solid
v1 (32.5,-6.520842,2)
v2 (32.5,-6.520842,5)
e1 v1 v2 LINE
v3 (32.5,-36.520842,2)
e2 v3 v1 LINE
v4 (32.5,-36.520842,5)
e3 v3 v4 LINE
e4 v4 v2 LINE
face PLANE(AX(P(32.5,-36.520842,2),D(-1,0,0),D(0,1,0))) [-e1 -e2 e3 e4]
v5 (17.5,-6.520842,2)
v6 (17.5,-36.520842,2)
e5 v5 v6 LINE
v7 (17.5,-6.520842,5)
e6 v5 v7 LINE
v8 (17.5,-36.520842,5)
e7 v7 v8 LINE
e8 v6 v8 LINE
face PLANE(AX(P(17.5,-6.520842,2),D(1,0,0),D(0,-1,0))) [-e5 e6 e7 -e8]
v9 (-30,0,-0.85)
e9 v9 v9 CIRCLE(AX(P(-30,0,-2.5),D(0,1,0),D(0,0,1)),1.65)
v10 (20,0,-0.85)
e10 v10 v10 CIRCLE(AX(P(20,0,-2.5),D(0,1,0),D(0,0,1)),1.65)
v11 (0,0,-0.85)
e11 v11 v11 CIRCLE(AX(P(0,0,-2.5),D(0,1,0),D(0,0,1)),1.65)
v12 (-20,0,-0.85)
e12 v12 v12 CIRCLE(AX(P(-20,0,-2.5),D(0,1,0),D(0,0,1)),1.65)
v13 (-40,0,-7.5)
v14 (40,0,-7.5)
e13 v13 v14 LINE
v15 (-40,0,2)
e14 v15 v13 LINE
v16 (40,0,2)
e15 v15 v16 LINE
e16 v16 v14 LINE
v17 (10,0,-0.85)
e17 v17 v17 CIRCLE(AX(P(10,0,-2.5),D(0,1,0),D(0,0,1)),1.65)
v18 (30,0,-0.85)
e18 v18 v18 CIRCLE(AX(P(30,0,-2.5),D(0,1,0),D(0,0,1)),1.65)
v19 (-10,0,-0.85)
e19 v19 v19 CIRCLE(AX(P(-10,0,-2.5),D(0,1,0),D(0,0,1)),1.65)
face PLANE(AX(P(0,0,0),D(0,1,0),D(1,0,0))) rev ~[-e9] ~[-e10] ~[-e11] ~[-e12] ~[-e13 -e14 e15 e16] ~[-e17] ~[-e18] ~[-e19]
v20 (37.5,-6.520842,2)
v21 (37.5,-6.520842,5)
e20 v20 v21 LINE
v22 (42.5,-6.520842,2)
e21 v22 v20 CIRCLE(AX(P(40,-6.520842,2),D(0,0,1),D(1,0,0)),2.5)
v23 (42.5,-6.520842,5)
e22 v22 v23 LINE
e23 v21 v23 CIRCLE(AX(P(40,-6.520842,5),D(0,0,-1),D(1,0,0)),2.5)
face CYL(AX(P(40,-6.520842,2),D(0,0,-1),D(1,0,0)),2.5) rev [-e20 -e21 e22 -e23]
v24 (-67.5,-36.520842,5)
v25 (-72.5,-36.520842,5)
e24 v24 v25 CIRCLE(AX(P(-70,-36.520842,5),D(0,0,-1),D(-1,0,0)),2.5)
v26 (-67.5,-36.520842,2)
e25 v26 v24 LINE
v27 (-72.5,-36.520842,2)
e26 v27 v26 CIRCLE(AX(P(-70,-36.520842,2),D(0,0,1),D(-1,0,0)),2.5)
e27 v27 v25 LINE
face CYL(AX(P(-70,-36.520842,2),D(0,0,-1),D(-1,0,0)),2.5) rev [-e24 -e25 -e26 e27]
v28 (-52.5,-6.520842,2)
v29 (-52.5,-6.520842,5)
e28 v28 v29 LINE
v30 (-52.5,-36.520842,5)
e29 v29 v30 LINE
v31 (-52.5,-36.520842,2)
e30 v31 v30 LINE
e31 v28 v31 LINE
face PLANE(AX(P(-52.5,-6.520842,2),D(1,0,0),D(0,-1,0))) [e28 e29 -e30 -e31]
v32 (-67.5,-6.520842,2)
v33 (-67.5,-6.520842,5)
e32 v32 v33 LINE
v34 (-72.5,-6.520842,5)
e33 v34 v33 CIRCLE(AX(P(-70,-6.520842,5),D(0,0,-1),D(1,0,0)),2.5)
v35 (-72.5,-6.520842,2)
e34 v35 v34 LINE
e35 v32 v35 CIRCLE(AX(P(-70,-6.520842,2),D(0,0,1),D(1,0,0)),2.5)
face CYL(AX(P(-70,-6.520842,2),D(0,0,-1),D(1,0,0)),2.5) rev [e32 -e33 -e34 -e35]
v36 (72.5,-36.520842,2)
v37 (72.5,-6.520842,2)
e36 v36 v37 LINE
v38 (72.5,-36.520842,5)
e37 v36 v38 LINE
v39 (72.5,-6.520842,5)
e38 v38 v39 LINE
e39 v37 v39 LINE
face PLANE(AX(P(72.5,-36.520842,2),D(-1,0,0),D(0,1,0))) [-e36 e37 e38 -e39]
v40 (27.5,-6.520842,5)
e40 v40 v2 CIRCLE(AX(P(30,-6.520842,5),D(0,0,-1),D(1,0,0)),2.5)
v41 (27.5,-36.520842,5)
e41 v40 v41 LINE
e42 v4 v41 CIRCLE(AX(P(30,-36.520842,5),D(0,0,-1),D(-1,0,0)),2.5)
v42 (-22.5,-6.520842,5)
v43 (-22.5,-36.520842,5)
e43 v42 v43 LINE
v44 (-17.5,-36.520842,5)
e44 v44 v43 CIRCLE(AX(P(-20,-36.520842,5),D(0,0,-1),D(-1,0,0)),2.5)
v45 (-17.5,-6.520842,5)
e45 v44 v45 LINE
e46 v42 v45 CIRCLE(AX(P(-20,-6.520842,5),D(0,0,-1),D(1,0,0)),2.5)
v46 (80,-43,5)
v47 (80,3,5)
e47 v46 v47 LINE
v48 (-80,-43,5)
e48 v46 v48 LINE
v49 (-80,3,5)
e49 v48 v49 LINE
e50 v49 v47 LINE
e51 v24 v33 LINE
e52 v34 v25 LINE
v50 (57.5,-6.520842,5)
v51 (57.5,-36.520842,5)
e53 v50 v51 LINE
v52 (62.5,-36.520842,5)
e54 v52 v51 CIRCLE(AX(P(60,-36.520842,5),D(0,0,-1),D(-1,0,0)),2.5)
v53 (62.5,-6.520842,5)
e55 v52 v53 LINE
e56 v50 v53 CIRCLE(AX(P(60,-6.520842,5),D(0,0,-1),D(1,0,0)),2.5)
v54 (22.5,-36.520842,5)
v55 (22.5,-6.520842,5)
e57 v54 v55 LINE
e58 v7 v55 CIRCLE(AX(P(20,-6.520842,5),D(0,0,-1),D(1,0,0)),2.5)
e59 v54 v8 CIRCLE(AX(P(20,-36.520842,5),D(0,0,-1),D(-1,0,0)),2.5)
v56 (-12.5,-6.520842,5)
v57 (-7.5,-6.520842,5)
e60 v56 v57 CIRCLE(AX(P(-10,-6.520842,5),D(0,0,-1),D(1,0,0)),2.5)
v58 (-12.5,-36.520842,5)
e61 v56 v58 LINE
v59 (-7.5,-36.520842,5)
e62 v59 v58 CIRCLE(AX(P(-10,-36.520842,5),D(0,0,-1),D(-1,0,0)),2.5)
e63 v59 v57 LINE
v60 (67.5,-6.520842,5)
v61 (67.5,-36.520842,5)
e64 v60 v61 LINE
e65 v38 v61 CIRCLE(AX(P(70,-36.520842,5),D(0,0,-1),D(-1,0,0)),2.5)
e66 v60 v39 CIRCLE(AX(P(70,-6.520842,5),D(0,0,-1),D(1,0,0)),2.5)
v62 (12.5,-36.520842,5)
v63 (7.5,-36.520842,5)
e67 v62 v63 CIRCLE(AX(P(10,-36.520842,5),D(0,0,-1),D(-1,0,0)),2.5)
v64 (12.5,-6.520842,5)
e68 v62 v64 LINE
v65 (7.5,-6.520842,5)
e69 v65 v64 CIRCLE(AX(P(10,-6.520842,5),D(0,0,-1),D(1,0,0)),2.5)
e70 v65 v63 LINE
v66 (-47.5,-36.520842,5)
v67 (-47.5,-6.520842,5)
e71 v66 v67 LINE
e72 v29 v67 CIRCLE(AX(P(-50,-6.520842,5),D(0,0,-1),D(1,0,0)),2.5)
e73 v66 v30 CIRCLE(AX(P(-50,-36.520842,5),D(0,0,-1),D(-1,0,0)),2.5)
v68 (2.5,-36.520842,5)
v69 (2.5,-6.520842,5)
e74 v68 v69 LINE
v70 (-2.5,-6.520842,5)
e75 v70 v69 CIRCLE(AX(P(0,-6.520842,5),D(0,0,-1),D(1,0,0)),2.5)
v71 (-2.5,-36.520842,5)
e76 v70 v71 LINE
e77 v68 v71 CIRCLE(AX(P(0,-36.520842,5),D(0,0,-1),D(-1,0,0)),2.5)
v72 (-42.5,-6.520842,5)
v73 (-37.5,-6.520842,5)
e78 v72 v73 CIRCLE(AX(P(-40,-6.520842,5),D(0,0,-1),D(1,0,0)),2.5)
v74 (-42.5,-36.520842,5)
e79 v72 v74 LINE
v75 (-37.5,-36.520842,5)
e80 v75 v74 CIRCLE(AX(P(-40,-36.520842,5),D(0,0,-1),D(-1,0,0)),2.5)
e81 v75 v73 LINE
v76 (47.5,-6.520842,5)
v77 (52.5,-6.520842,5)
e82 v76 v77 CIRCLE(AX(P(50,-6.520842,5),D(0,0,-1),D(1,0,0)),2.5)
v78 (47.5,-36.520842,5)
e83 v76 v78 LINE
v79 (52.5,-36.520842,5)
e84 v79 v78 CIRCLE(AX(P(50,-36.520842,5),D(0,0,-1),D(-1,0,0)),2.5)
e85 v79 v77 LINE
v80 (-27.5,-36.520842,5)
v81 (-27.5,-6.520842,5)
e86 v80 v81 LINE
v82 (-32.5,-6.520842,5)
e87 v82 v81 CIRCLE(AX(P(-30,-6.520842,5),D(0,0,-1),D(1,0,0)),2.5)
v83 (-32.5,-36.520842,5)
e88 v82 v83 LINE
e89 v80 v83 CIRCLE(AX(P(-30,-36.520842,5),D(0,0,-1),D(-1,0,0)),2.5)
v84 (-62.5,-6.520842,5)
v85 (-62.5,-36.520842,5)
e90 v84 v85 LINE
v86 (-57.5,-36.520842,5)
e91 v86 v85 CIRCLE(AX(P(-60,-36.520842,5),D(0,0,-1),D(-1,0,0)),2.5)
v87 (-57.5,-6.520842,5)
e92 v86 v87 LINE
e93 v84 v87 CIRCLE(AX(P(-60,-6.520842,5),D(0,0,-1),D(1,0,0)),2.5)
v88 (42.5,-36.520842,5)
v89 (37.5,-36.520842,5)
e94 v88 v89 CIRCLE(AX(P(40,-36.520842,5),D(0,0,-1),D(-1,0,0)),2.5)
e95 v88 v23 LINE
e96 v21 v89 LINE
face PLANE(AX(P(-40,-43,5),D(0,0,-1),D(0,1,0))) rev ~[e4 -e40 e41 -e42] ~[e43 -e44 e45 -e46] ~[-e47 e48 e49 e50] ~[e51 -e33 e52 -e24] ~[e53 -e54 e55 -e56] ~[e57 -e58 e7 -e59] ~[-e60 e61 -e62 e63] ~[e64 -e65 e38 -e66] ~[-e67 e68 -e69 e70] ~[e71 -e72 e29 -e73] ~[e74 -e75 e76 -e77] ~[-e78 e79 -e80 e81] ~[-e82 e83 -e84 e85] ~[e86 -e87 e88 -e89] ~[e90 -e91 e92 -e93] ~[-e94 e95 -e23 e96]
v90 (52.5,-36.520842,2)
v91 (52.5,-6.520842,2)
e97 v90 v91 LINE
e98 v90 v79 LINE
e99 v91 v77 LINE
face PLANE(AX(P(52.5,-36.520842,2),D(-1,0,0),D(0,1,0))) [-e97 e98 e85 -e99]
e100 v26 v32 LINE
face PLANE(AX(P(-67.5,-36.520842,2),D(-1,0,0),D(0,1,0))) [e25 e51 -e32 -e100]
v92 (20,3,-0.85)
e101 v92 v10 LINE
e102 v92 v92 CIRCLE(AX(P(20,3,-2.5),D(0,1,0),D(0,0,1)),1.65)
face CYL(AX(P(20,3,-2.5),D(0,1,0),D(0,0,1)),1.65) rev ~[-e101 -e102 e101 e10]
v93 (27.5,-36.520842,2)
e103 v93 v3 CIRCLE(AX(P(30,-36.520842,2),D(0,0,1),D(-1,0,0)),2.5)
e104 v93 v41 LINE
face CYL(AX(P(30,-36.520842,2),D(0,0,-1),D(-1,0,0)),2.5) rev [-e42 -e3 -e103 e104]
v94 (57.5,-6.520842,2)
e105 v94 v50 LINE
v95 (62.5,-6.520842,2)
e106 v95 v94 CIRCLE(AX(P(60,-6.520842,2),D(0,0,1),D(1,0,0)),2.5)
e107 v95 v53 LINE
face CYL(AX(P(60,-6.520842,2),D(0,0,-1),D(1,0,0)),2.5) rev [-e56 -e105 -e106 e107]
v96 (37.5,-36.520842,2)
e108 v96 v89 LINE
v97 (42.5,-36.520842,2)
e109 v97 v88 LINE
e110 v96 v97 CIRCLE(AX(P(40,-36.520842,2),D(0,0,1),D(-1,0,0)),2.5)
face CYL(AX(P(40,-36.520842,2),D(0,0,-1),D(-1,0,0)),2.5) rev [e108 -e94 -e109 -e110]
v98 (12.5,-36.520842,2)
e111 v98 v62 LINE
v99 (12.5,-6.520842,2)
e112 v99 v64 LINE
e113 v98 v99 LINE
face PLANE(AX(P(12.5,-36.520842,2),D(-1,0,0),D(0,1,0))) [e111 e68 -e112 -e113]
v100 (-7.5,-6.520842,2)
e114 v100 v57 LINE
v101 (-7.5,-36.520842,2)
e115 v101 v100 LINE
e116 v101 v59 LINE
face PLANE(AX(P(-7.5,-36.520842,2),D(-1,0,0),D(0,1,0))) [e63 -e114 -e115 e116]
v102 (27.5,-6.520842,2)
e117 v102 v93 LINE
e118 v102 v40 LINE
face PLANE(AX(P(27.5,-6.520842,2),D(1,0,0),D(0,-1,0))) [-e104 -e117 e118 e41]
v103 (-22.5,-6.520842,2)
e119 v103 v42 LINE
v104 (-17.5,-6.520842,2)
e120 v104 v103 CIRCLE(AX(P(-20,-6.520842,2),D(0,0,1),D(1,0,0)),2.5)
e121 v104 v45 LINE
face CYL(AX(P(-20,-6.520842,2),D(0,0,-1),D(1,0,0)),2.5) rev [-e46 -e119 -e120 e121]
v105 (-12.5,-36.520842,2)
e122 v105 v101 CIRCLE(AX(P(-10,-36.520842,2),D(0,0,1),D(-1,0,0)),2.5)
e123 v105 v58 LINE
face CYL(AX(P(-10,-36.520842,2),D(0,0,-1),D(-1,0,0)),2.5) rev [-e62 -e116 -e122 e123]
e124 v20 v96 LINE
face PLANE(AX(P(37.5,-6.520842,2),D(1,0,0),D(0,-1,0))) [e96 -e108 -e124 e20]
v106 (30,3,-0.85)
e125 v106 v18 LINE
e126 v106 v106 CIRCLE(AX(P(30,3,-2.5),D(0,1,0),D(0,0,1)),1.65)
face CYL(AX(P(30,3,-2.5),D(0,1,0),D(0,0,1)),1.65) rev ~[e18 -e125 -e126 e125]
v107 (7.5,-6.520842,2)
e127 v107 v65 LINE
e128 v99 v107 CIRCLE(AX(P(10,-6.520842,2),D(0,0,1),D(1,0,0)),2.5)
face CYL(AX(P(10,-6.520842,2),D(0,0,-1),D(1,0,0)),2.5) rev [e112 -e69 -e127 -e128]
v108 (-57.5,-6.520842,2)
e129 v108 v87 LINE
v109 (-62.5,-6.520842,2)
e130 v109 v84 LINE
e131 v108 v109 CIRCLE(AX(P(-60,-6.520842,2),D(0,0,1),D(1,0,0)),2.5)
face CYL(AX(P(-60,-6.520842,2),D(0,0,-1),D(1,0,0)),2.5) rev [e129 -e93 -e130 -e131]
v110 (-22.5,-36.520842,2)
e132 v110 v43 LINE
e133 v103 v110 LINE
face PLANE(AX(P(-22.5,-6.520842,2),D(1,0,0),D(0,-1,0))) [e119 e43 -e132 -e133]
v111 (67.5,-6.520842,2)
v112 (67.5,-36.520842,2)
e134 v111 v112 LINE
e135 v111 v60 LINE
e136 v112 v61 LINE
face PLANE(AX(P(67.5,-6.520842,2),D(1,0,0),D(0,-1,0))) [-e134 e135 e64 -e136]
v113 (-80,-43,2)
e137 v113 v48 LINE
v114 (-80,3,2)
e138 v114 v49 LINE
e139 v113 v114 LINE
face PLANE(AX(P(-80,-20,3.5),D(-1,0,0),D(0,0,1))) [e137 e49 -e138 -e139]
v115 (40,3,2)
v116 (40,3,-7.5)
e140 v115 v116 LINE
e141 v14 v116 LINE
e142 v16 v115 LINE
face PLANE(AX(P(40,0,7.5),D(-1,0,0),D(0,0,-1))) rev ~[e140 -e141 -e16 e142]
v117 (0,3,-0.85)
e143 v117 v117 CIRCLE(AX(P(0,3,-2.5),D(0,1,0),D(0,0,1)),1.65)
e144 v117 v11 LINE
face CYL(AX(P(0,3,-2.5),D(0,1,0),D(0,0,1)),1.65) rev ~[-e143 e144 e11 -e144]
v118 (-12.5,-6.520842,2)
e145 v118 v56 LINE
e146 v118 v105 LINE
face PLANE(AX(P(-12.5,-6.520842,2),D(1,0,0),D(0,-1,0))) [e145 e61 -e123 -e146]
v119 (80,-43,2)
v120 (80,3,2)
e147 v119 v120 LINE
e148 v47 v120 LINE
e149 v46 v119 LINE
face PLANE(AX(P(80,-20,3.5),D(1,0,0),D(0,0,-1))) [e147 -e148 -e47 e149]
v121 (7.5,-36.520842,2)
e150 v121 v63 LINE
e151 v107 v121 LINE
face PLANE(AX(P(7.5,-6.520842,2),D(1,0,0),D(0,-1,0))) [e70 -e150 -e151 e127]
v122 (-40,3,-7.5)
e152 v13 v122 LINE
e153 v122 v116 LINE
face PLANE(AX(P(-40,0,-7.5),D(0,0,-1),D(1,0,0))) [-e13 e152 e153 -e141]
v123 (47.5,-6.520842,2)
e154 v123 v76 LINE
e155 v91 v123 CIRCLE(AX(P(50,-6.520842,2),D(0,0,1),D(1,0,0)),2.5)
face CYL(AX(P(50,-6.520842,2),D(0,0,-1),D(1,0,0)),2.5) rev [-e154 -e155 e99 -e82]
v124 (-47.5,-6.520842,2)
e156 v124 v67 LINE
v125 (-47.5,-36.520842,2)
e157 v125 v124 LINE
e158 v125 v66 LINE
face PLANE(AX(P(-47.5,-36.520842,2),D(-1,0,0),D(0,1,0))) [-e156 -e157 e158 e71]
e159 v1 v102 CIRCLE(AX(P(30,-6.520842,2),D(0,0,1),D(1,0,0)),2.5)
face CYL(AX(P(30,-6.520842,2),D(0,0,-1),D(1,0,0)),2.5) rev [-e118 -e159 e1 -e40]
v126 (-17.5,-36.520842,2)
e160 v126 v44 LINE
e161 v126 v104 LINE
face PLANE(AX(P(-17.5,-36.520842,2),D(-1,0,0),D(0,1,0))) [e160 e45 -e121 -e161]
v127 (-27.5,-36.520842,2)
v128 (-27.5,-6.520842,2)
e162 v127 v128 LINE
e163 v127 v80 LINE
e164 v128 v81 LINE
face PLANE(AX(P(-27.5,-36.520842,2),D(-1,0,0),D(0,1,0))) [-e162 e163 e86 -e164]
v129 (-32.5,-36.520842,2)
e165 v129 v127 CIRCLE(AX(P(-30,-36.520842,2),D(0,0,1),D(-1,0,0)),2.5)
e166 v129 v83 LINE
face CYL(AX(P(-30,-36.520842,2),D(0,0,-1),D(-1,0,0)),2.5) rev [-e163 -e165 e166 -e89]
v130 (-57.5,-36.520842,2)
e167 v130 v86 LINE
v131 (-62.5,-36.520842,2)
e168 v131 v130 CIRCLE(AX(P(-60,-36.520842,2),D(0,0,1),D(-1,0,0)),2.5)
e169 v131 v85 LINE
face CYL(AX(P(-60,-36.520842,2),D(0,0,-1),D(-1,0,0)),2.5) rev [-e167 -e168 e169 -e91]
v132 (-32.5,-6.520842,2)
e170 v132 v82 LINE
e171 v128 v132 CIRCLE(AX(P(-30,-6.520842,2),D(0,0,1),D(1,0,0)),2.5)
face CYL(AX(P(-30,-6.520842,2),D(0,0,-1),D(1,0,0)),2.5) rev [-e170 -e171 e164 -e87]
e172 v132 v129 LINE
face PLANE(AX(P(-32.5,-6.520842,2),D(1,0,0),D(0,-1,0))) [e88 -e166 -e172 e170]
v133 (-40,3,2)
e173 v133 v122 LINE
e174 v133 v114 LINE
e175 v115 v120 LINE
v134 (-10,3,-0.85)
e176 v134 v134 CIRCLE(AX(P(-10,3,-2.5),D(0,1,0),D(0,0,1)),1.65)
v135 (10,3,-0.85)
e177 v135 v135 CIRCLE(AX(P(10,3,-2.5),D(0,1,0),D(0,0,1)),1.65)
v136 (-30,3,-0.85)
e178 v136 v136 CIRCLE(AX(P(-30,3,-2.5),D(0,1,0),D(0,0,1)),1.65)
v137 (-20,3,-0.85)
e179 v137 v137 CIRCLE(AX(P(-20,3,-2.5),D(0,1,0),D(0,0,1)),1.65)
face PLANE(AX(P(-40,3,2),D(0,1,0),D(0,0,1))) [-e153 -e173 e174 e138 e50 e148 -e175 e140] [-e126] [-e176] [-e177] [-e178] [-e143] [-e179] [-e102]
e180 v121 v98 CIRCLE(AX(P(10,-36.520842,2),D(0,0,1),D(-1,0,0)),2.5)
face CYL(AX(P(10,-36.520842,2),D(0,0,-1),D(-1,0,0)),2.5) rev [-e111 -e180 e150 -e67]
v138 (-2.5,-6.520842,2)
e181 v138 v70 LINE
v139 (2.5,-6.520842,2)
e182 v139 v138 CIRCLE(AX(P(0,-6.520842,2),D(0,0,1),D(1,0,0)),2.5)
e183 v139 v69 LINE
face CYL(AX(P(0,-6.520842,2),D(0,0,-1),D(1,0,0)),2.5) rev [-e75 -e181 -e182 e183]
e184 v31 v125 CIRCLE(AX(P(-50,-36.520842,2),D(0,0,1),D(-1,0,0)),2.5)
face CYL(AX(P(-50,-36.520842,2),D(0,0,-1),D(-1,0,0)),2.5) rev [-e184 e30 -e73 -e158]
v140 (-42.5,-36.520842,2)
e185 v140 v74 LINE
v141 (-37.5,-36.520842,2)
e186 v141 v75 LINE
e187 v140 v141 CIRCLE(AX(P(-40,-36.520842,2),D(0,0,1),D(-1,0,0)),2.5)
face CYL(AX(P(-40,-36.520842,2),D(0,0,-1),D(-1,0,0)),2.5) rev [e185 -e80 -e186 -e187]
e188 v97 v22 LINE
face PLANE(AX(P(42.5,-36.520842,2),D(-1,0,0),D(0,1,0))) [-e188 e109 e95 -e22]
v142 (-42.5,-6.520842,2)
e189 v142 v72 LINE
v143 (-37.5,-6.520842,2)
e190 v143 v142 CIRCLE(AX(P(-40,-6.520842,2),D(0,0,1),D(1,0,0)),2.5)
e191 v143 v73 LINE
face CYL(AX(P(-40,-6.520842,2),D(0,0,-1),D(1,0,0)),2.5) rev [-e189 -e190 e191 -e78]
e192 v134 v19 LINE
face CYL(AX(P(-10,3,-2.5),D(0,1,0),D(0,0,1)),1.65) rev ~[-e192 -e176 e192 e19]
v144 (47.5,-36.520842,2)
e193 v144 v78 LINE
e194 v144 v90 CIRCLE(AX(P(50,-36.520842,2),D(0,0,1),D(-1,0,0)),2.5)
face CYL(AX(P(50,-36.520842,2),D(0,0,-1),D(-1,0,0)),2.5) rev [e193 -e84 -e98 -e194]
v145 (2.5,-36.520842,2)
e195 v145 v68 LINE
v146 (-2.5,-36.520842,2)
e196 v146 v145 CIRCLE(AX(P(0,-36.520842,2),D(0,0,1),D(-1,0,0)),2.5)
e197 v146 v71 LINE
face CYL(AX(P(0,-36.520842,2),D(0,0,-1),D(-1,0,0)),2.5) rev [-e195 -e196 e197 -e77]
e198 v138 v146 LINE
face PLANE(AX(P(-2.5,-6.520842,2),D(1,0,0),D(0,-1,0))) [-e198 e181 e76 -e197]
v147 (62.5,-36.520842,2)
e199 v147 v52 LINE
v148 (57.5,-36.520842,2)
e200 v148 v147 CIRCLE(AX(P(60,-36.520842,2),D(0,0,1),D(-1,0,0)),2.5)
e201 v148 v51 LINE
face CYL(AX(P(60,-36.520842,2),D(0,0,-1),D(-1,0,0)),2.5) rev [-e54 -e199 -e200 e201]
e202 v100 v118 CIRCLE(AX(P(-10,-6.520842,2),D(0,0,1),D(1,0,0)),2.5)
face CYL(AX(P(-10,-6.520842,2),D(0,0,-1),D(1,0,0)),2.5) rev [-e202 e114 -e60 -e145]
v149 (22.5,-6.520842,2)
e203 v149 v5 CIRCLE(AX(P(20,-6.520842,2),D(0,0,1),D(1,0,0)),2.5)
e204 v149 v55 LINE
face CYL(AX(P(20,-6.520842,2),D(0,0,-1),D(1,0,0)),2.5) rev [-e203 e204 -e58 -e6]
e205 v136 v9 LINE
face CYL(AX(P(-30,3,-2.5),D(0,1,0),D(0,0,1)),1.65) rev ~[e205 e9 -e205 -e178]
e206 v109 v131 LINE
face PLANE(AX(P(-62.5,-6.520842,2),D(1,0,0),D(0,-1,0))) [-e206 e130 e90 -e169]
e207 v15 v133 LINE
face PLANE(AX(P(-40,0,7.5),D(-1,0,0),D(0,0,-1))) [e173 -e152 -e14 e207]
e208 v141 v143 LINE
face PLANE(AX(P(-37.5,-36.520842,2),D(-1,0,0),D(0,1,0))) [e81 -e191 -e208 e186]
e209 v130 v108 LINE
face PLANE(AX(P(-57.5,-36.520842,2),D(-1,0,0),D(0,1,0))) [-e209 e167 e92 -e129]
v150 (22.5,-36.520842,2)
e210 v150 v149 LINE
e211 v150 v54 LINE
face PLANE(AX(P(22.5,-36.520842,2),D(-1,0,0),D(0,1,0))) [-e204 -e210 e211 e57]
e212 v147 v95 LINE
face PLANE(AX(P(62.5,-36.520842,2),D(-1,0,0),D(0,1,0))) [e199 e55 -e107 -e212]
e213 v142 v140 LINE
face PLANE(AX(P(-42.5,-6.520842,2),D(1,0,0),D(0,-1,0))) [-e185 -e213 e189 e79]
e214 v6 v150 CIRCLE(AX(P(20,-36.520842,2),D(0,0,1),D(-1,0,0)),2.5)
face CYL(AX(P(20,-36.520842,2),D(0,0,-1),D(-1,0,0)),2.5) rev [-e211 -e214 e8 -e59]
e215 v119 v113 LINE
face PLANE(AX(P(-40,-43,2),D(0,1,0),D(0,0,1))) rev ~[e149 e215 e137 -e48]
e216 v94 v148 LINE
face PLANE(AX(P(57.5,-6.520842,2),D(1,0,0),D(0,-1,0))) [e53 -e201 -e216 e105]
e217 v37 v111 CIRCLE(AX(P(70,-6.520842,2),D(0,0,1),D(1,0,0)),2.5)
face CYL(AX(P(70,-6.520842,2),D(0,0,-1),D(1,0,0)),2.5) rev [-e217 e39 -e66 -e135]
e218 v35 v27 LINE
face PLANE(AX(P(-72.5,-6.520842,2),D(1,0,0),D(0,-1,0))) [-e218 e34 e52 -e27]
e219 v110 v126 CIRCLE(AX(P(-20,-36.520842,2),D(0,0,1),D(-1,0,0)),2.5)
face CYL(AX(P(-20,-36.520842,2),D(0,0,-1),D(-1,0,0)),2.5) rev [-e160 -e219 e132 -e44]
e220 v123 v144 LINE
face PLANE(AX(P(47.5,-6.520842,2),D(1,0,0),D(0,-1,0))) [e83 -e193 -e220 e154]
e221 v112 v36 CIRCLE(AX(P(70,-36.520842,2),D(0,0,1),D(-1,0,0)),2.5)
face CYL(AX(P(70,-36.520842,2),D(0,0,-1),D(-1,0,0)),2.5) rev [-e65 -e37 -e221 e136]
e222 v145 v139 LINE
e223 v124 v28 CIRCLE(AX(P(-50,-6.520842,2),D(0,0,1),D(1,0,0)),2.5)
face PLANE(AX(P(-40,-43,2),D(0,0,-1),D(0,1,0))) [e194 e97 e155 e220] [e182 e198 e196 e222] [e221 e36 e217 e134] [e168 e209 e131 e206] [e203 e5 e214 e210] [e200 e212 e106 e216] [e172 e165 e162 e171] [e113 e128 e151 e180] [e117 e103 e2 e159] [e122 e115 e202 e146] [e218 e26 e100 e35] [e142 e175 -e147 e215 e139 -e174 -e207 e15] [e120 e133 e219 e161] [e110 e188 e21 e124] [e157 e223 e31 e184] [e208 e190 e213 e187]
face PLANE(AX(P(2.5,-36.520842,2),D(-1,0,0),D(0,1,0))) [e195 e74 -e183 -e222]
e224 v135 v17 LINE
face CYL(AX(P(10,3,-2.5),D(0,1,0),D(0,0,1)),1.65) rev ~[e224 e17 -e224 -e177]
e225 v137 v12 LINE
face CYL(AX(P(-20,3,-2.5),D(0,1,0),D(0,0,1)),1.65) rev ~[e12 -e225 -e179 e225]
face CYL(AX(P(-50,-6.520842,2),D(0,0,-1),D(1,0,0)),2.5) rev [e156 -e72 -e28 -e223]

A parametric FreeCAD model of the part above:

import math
import FreeCAD as App
import Part
import Sketcher

doc = App.newDocument("Part")
body = doc.addObject("PartDesign::Body", "Body")

sketch1 = doc.addObject("Sketcher::SketchObject", "Sketch")
body.addObject(sketch1)
sketch1.AttachmentSupport = (doc.XZ_Plane, [""])
sketch1.MapMode = "FlatFace"
sketch1.addGeometry(Part.LineSegment(App.Vector(-40, -8, 0), App.Vector(-40, 8, 0)), False)
sketch1.addGeometry(Part.LineSegment(App.Vector(-40, 8, 0), App.Vector(40, 8, 0)), False)
sketch1.addGeometry(Part.LineSegment(App.Vector(40, 8, 0), App.Vector(40, -8, 0)), False)
sketch1.addGeometry(Part.LineSegment(App.Vector(40, -8, 0), App.Vector(-40, -8, 0)), False)
sketch1.addConstraint(Sketcher.Constraint("Coincident", 0, 2, 1, 1))
sketch1.addConstraint(Sketcher.Constraint("Coincident", 1, 2, 2, 1))
sketch1.addConstraint(Sketcher.Constraint("Coincident", 2, 2, 3, 1))
sketch1.addConstraint(Sketcher.Constraint("Coincident", 3, 2, 0, 1))
sketch1.addConstraint(Sketcher.Constraint("Vertical", 0))
sketch1.addConstraint(Sketcher.Constraint("Horizontal", 1))
sketch1.addConstraint(Sketcher.Constraint("Vertical", 2))
sketch1.addConstraint(Sketcher.Constraint("Horizontal", 3))
sketch1.addConstraint(Sketcher.Constraint("Symmetric", 0, 2, 2, 2, -1, 1))
sketch1.addConstraint(Sketcher.Constraint("DistanceX", 1, 1, 1, 2, 80.0))
sketch1.addConstraint(Sketcher.Constraint("DistanceY", 0, 1, 0, 2, 15.0))
pad1 = doc.addObject("PartDesign::Pad", "Pad")
body.addObject(pad1)
pad1.Profile = sketch1
pad1.Length = 3
pad1.Reversed = True

sketch2 = doc.addObject("Sketcher::SketchObject", "Sketch001")
body.addObject(sketch2)
sketch2.AttachmentSupport = (doc.XZ_Plane, [""])
sketch2.MapMode = "FlatFace"
sketch2.AttachmentOffset = App.Placement(App.Vector(0, 0, -3), App.Rotation())
sketch2.addGeometry(Part.Circle(App.Vector(-30, -2.5, 0), App.Vector(0, 0, 1), 1.6), False)
sketch2.addGeometry(Part.Circle(App.Vector(-20, -2.5, 0), App.Vector(0, 0, 1), 1.6), False)
sketch2.addGeometry(Part.Circle(App.Vector(-10, -2.5, 0), App.Vector(0, 0, 1), 1.6), False)
sketch2.addGeometry(Part.Circle(App.Vector(0, -2.5, 0), App.Vector(0, 0, 1), 1.6), False)
sketch2.addGeometry(Part.Circle(App.Vector(10, -2.5, 0), App.Vector(0, 0, 1), 1.6), False)
sketch2.addGeometry(Part.Circle(App.Vector(20, -2.5, 0), App.Vector(0, 0, 1), 1.6), False)
sketch2.addGeometry(Part.Circle(App.Vector(30, -2.5, 0), App.Vector(0, 0, 1), 1.6), False)
sketch2.addConstraint(Sketcher.Constraint("Equal", 0, 1))
sketch2.addConstraint(Sketcher.Constraint("Equal", 1, 2))
sketch2.addConstraint(Sketcher.Constraint("Equal", 2, 3))
sketch2.addConstraint(Sketcher.Constraint("Equal", 3, 4))
sketch2.addConstraint(Sketcher.Constraint("Equal", 4, 5))
sketch2.addConstraint(Sketcher.Constraint("Equal", 5, 6))
sketch2.addConstraint(Sketcher.Constraint("Symmetric", 2, 3, 4, 3, -2))
sketch2.addConstraint(Sketcher.Constraint("Symmetric", 1, 3, 5, 3, -2))
sketch2.addConstraint(Sketcher.Constraint("Symmetric", 0, 3, 6, 3, -2))
sketch2.addConstraint(Sketcher.Constraint("PointOnObject", 3, 3, -2))
sketch2.addConstraint(Sketcher.Constraint("Horizontal", 0, 3, 1, 3))
sketch2.addConstraint(Sketcher.Constraint("Horizontal", 1, 3, 2, 3))
sketch2.addConstraint(Sketcher.Constraint("Horizontal", 2, 3, 3, 3))
sketch2.addConstraint(Sketcher.Constraint("Diameter", 0, 3.3))
sketch2.addConstraint(Sketcher.Constraint("DistanceX", 0, 3, -1, 1, 30.0))
sketch2.addConstraint(Sketcher.Constraint("DistanceX", 1, 3, -1, 1, 20.0))
sketch2.addConstraint(Sketcher.Constraint("DistanceX", 2, 3, -1, 1, 10.0))
sketch2.addConstraint(Sketcher.Constraint("DistanceY", 0, 3, -1, 1, 2.5))
pocket1 = doc.addObject("PartDesign::Pocket", "Pocket")
body.addObject(pocket1)
pocket1.Profile = sketch2
pocket1.Length = 3
pocket1.Reversed = True

sketch3 = doc.addObject("Sketcher::SketchObject", "Sketch002")
body.addObject(sketch3)
sketch3.AttachmentSupport = (doc.XZ_Plane, [""])
sketch3.MapMode = "FlatFace"
sketch3.addGeometry(Part.LineSegment(App.Vector(-40, 5, 0), App.Vector(-40, 2, 0)), False)
sketch3.addGeometry(Part.LineSegment(App.Vector(-40, 2, 0), App.Vector(40, 2, 0)), False)
sketch3.addGeometry(Part.LineSegment(App.Vector(40, 2, 0), App.Vector(40, 5, 0)), False)
sketch3.addGeometry(Part.LineSegment(App.Vector(40, 5, 0), App.Vector(-40, 5, 0)), False)
sketch3.addConstraint(Sketcher.Constraint("Coincident", 0, 2, 1, 1))
sketch3.addConstraint(Sketcher.Constraint("Coincident", 1, 2, 2, 1))
sketch3.addConstraint(Sketcher.Constraint("Coincident", 2, 2, 3, 1))
sketch3.addConstraint(Sketcher.Constraint("Coincident", 3, 2, 0, 1))
sketch3.addConstraint(Sketcher.Constraint("Vertical", 0))
sketch3.addConstraint(Sketcher.Constraint("Horizontal", 1))
sketch3.addConstraint(Sketcher.Constraint("Vertical", 2))
sketch3.addConstraint(Sketcher.Constraint("Horizontal", 3))
sketch3.addConstraint(Sketcher.Constraint("DistanceX", 1, 1, 1, 2, 80.0))
sketch3.addConstraint(Sketcher.Constraint("DistanceY", 0, 2, 0, 1, 3.0))
sketch3.addConstraint(Sketcher.Constraint("DistanceX", 0, 2, -1, 1, 40.0))
sketch3.addConstraint(Sketcher.Constraint("DistanceY", -1, 1, 0, 2, 2.0))
pad2 = doc.addObject("PartDesign::Pad", "Pad001")
body.addObject(pad2)
pad2.Profile = sketch3
pad2.Length = 43

sketch4 = doc.addObject("Sketcher::SketchObject", "Sketch003")
body.addObject(sketch4)
sketch4.AttachmentSupport = (doc.YZ_Plane, [""])
sketch4.MapMode = "FlatFace"
sketch4.AttachmentOffset = App.Placement(App.Vector(0, 0, 40), App.Rotation())
sketch4.addGeometry(Part.LineSegment(App.Vector(3, 5, 0), App.Vector(-43, 5, 0)), False)
sketch4.addGeometry(Part.LineSegment(App.Vector(-43, 5, 0), App.Vector(-43, 2, 0)), False)
sketch4.addGeometry(Part.LineSegment(App.Vector(-43, 2, 0), App.Vector(3, 2, 0)), False)
sketch4.addGeometry(Part.LineSegment(App.Vector(3, 2, 0), App.Vector(3, 5, 0)), False)
sketch4.addConstraint(Sketcher.Constraint("Coincident", 0, 2, 1, 1))
sketch4.addConstraint(Sketcher.Constraint("Coincident", 1, 2, 2, 1))
sketch4.addConstraint(Sketcher.Constraint("Coincident", 2, 2, 3, 1))
sketch4.addConstraint(Sketcher.Constraint("Coincident", 3, 2, 0, 1))
sketch4.addConstraint(Sketcher.Constraint("Horizontal", 0))
sketch4.addConstraint(Sketcher.Constraint("Vertical", 1))
sketch4.addConstraint(Sketcher.Constraint("Horizontal", 2))
sketch4.addConstraint(Sketcher.Constraint("Vertical", 3))
sketch4.addConstraint(Sketcher.Constraint("DistanceX", 0, 2, 0, 1, 46.0))
sketch4.addConstraint(Sketcher.Constraint("DistanceY", 1, 2, 1, 1, 3.0))
sketch4.addConstraint(Sketcher.Constraint("DistanceX", 0, 2, -1, 1, 43.0))
sketch4.addConstraint(Sketcher.Constraint("DistanceY", -1, 1, 0, 2, 5.0))
pad3 = doc.addObject("PartDesign::Pad", "Pad002")
body.addObject(pad3)
pad3.Profile = sketch4
pad3.Length = 40

sketch5 = doc.addObject("Sketcher::SketchObject", "Sketch004")
body.addObject(sketch5)
sketch5.AttachmentSupport = (doc.YZ_Plane, [""])
sketch5.MapMode = "FlatFace"
sketch5.AttachmentOffset = App.Placement(App.Vector(0, 0, -40), App.Rotation())
sketch5.addGeometry(Part.LineSegment(App.Vector(3, 2, 0), App.Vector(-43, 2, 0)), False)
sketch5.addGeometry(Part.LineSegment(App.Vector(-43, 2, 0), App.Vector(-43, 5, 0)), False)
sketch5.addGeometry(Part.LineSegment(App.Vector(-43, 5, 0), App.Vector(3, 5, 0)), False)
sketch5.addGeometry(Part.LineSegment(App.Vector(3, 5, 0), App.Vector(3, 2, 0)), False)
sketch5.addConstraint(Sketcher.Constraint("Coincident", 0, 2, 1, 1))
sketch5.addConstraint(Sketcher.Constraint("Coincident", 1, 2, 2, 1))
sketch5.addConstraint(Sketcher.Constraint("Coincident", 2, 2, 3, 1))
sketch5.addConstraint(Sketcher.Constraint("Coincident", 3, 2, 0, 1))
sketch5.addConstraint(Sketcher.Constraint("Horizontal", 0))
sketch5.addConstraint(Sketcher.Constraint("Vertical", 1))
sketch5.addConstraint(Sketcher.Constraint("Horizontal", 2))
sketch5.addConstraint(Sketcher.Constraint("Vertical", 3))
sketch5.addConstraint(Sketcher.Constraint("DistanceX", 0, 2, 0, 1, 46.0))
sketch5.addConstraint(Sketcher.Constraint("DistanceY", 1, 1, 1, 2, 3.0))
sketch5.addConstraint(Sketcher.Constraint("DistanceX", 0, 2, -1, 1, 43.0))
sketch5.addConstraint(Sketcher.Constraint("DistanceY", -1, 1, 0, 2, 2.0))
pad4 = doc.addObject("PartDesign::Pad", "Pad003")
body.addObject(pad4)
pad4.Profile = sketch5
pad4.Length = 40
pad4.Reversed = True

sketch6 = doc.addObject("Sketcher::SketchObject", "Sketch005")
body.addObject(sketch6)
sketch6.AttachmentSupport = (doc.YZ_Plane, [""])
sketch6.MapMode = "FlatFace"
sketch6.AttachmentOffset = App.Placement(App.Vector(0, 0, -40), App.Rotation())
sketch6.addGeometry(Part.LineSegment(App.Vector(3, 5, 0), App.Vector(0, 5, 0)), False)
sketch6.addGeometry(Part.LineSegment(App.Vector(0, 5, 0), App.Vector(0, 7.5, 0)), False)
sketch6.addGeometry(Part.LineSegment(App.Vector(0, 7.5, 0), App.Vector(3, 7.5, 0)), False)
sketch6.addGeometry(Part.LineSegment(App.Vector(3, 7.5, 0), App.Vector(3, 5, 0)), False)
sketch6.addConstraint(Sketcher.Constraint("Coincident", 0, 2, 1, 1))
sketch6.addConstraint(Sketcher.Constraint("Coincident", 1, 2, 2, 1))
sketch6.addConstraint(Sketcher.Constraint("Coincident", 2, 2, 3, 1))
sketch6.addConstraint(Sketcher.Constraint("Coincident", 3, 2, 0, 1))
sketch6.addConstraint(Sketcher.Constraint("Horizontal", 0))
sketch6.addConstraint(Sketcher.Constraint("Vertical", 1))
sketch6.addConstraint(Sketcher.Constraint("Horizontal", 2))
sketch6.addConstraint(Sketcher.Constraint("Vertical", 3))
sketch6.addConstraint(Sketcher.Constraint("PointOnObject", 0, 2, -2))
sketch6.addConstraint(Sketcher.Constraint("DistanceX", 0, 2, 0, 1, 3.0))
sketch6.addConstraint(Sketcher.Constraint("DistanceY", 1, 1, 1, 2, 2.5))
sketch6.addConstraint(Sketcher.Constraint("DistanceY", -1, 1, 0, 2, 5.0))
pocket2 = doc.addObject("PartDesign::Pocket", "Pocket001")
body.addObject(pocket2)
pocket2.Profile = sketch6
pocket2.Length = 80
pocket2.Reversed = True

sketch7 = doc.addObject("Sketcher::SketchObject", "Sketch006")
body.addObject(sketch7)
sketch7.AttachmentSupport = (doc.XY_Plane, [""])
sketch7.MapMode = "FlatFace"
sketch7.AttachmentOffset = App.Placement(App.Vector(0, 0, 2), App.Rotation())
sketch7.addGeometry(Part.LineSegment(App.Vector(67.5, -36.5, 0), App.Vector(67.5, -6.5, 0)), False)
sketch7.addGeometry(Part.ArcOfCircle(Part.Circle(App.Vector(70, -6.5, 0), App.Vector(0, 0, 1), 2.5), math.radians(0), math.radians(180)), False)
sketch7.addGeometry(Part.LineSegment(App.Vector(72.5, -6.5, 0), App.Vector(72.5, -36.5, 0)), False)
sketch7.addGeometry(Part.ArcOfCircle(Part.Circle(App.Vector(70, -36.5, 0), App.Vector(0, 0, 1), 2.5), math.radians(180), math.radians(360)), False)
sketch7.addGeometry(Part.LineSegment(App.Vector(57.5, -36.5, 0), App.Vector(57.5, -6.5, 0)), False)
sketch7.addGeometry(Part.ArcOfCircle(Part.Circle(App.Vector(60, -6.5, 0), App.Vector(0, 0, 1), 2.5), math.radians(0), math.radians(180)), False)
sketch7.addGeometry(Part.LineSegment(App.Vector(62.5, -6.5, 0), App.Vector(62.5, -36.5, 0)), False)
sketch7.addGeometry(Part.ArcOfCircle(Part.Circle(App.Vector(60, -36.5, 0), App.Vector(0, 0, 1), 2.5), math.radians(180), math.radians(360)), False)
sketch7.addGeometry(Part.LineSegment(App.Vector(47.5, -36.5, 0), App.Vector(47.5, -6.5, 0)), False)
sketch7.addGeometry(Part.ArcOfCircle(Part.Circle(App.Vector(50, -6.5, 0), App.Vector(0, 0, 1), 2.5), math.radians(0), math.radians(180)), False)
sketch7.addGeometry(Part.LineSegment(App.Vector(52.5, -6.5, 0), App.Vector(52.5, -36.5, 0)), False)
sketch7.addGeometry(Part.ArcOfCircle(Part.Circle(App.Vector(50, -36.5, 0), App.Vector(0, 0, 1), 2.5), math.radians(180), math.radians(360)), False)
sketch7.addGeometry(Part.LineSegment(App.Vector(37.5, -36.5, 0), App.Vector(37.5, -6.5, 0)), False)
sketch7.addGeometry(Part.ArcOfCircle(Part.Circle(App.Vector(40, -6.5, 0), App.Vector(0, 0, 1), 2.5), math.radians(0), math.radians(180)), False)
sketch7.addGeometry(Part.LineSegment(App.Vector(42.5, -6.5, 0), App.Vector(42.5, -36.5, 0)), False)
sketch7.addGeometry(Part.ArcOfCircle(Part.Circle(App.Vector(40, -36.5, 0), App.Vector(0, 0, 1), 2.5), math.radians(180), math.radians(360)), False)
sketch7.addGeometry(Part.LineSegment(App.Vector(27.5, -36.5, 0), App.Vector(27.5, -6.5, 0)), False)
sketch7.addGeometry(Part.ArcOfCircle(Part.Circle(App.Vector(30, -6.5, 0), App.Vector(0, 0, 1), 2.5), math.radians(0), math.radians(180)), False)
sketch7.addGeometry(Part.LineSegment(App.Vector(32.5, -6.5, 0), App.Vector(32.5, -36.5, 0)), False)
sketch7.addGeometry(Part.ArcOfCircle(Part.Circle(App.Vector(30, -36.5, 0), App.Vector(0, 0, 1), 2.5), math.radians(180), math.radians(360)), False)
sketch7.addGeometry(Part.LineSegment(App.Vector(17.5, -36.5, 0), App.Vector(17.5, -6.5, 0)), False)
sketch7.addGeometry(Part.ArcOfCircle(Part.Circle(App.Vector(20, -6.5, 0), App.Vector(0, 0, 1), 2.5), math.radians(0), math.radians(180)), False)
sketch7.addGeometry(Part.LineSegment(App.Vector(22.5, -6.5, 0), App.Vector(22.5, -36.5, 0)), False)
sketch7.addGeometry(Part.ArcOfCircle(Part.Circle(App.Vector(20, -36.5, 0), App.Vector(0, 0, 1), 2.5), math.radians(180), math.radians(360)), False)
sketch7.addGeometry(Part.LineSegment(App.Vector(7.5, -36.5, 0), App.Vector(7.5, -6.5, 0)), False)
sketch7.addGeometry(Part.ArcOfCircle(Part.Circle(App.Vector(10, -6.5, 0), App.Vector(0, 0, 1), 2.5), math.radians(0), math.radians(180)), False)
sketch7.addGeometry(Part.LineSegment(App.Vector(12.5, -6.5, 0), App.Vector(12.5, -36.5, 0)), False)
sketch7.addGeometry(Part.ArcOfCircle(Part.Circle(App.Vector(10, -36.5, 0), App.Vector(0, 0, 1), 2.5), math.radians(180), math.radians(360)), False)
sketch7.addGeometry(Part.LineSegment(App.Vector(-2.5, -36.5, 0), App.Vector(-2.5, -6.5, 0)), False)
sketch7.addGeometry(Part.ArcOfCircle(Part.Circle(App.Vector(0, -6.5, 0), App.Vector(0, 0, 1), 2.5), math.radians(0), math.radians(180)), False)
sketch7.addGeometry(Part.LineSegment(App.Vector(2.5, -6.5, 0), App.Vector(2.5, -36.5, 0)), False)
sketch7.addGeometry(Part.ArcOfCircle(Part.Circle(App.Vector(0, -36.5, 0), App.Vector(0, 0, 1), 2.5), math.radians(180), math.radians(360)), False)
sketch7.addGeometry(Part.LineSegment(App.Vector(-12.5, -36.5, 0), App.Vector(-12.5, -6.5, 0)), False)
sketch7.addGeometry(Part.ArcOfCircle(Part.Circle(App.Vector(-10, -6.5, 0), App.Vector(0, 0, 1), 2.5), math.radians(0), math.radians(180)), False)
sketch7.addGeometry(Part.LineSegment(App.Vector(-7.5, -6.5, 0), App.Vector(-7.5, -36.5, 0)), False)
sketch7.addGeometry(Part.ArcOfCircle(Part.Circle(App.Vector(-10, -36.5, 0), App.Vector(0, 0, 1), 2.5), math.radians(180), math.radians(360)), False)
sketch7.addGeometry(Part.LineSegment(App.Vector(-22.5, -36.5, 0), App.Vector(-22.5, -6.5, 0)), False)
sketch7.addGeometry(Part.ArcOfCircle(Part.Circle(App.Vector(-20, -6.5, 0), App.Vector(0, 0, 1), 2.5), math.radians(0), math.radians(180)), False)
sketch7.addGeometry(Part.LineSegment(App.Vector(-17.5, -6.5, 0), App.Vector(-17.5, -36.5, 0)), False)
sketch7.addGeometry(Part.ArcOfCircle(Part.Circle(App.Vector(-20, -36.5, 0), App.Vector(0, 0, 1), 2.5), math.radians(180), math.radians(360)), False)
sketch7.addGeometry(Part.LineSegment(App.Vector(-32.5, -36.5, 0), App.Vector(-32.5, -6.5, 0)), False)
sketch7.addGeometry(Part.ArcOfCircle(Part.Circle(App.Vector(-30, -6.5, 0), App.Vector(0, 0, 1), 2.5), math.radians(0), math.radians(180)), False)
sketch7.addGeometry(Part.LineSegment(App.Vector(-27.5, -6.5, 0), App.Vector(-27.5, -36.5, 0)), False)
sketch7.addGeometry(Part.ArcOfCircle(Part.Circle(App.Vector(-30, -36.5, 0), App.Vector(0, 0, 1), 2.5), math.radians(180), math.radians(360)), False)
sketch7.addGeometry(Part.LineSegment(App.Vector(-42.5, -36.5, 0), App.Vector(-42.5, -6.5, 0)), False)
sketch7.addGeometry(Part.ArcOfCircle(Part.Circle(App.Vector(-40, -6.5, 0), App.Vector(0, 0, 1), 2.5), math.radians(0), math.radians(180)), False)
sketch7.addGeometry(Part.LineSegment(App.Vector(-37.5, -6.5, 0), App.Vector(-37.5, -36.5, 0)), False)
sketch7.addGeometry(Part.ArcOfCircle(Part.Circle(App.Vector(-40, -36.5, 0), App.Vector(0, 0, 1), 2.5), math.radians(180), math.radians(360)), False)
sketch7.addGeometry(Part.LineSegment(App.Vector(-52.5, -36.5, 0), App.Vector(-52.5, -6.5, 0)), False)
sketch7.addGeometry(Part.ArcOfCircle(Part.Circle(App.Vector(-50, -6.5, 0), App.Vector(0, 0, 1), 2.5), math.radians(0), math.radians(180)), False)
sketch7.addGeometry(Part.LineSegment(App.Vector(-47.5, -6.5, 0), App.Vector(-47.5, -36.5, 0)), False)
sketch7.addGeometry(Part.ArcOfCircle(Part.Circle(App.Vector(-50, -36.5, 0), App.Vector(0, 0, 1), 2.5), math.radians(180), math.radians(360)), False)
sketch7.addGeometry(Part.LineSegment(App.Vector(-62.5, -36.5, 0), App.Vector(-62.5, -6.5, 0)), False)
sketch7.addGeometry(Part.ArcOfCircle(Part.Circle(App.Vector(-60, -6.5, 0), App.Vector(0, 0, 1), 2.5), math.radians(0), math.radians(180)), False)
sketch7.addGeometry(Part.LineSegment(App.Vector(-57.5, -6.5, 0), App.Vector(-57.5, -36.5, 0)), False)
sketch7.addGeometry(Part.ArcOfCircle(Part.Circle(App.Vector(-60, -36.5, 0), App.Vector(0, 0, 1), 2.5), math.radians(180), math.radians(360)), False)
sketch7.addGeometry(Part.LineSegment(App.Vector(-72.5, -36.5, 0), App.Vector(-72.5, -6.5, 0)), False)
sketch7.addGeometry(Part.ArcOfCircle(Part.Circle(App.Vector(-70, -6.5, 0), App.Vector(0, 0, 1), 2.5), math.radians(0), math.radians(180)), False)
sketch7.addGeometry(Part.LineSegment(App.Vector(-67.5, -6.5, 0), App.Vector(-67.5, -36.5, 0)), False)
sketch7.addGeometry(Part.ArcOfCircle(Part.Circle(App.Vector(-70, -36.5, 0), App.Vector(0, 0, 1), 2.5), math.radians(180), math.radians(360)), False)
sketch7.addConstraint(Sketcher.Constraint("Tangent", 0, 2, 1, 2))
sketch7.addConstraint(Sketcher.Constraint("Tangent", 1, 1, 2, 1))
sketch7.addConstraint(Sketcher.Constraint("Tangent", 2, 2, 3, 2))
sketch7.addConstraint(Sketcher.Constraint("Tangent", 3, 1, 0, 1))
sketch7.addConstraint(Sketcher.Constraint("Tangent", 4, 2, 5, 2))
sketch7.addConstraint(Sketcher.Constraint("Tangent", 5, 1, 6, 1))
sketch7.addConstraint(Sketcher.Constraint("Tangent", 6, 2, 7, 2))
sketch7.addConstraint(Sketcher.Constraint("Tangent", 7, 1, 4, 1))
sketch7.addConstraint(Sketcher.Constraint("Tangent", 8, 2, 9, 2))
sketch7.addConstraint(Sketcher.Constraint("Tangent", 9, 1, 10, 1))
sketch7.addConstraint(Sketcher.Constraint("Tangent", 10, 2, 11, 2))
sketch7.addConstraint(Sketcher.Constraint("Tangent", 11, 1, 8, 1))
sketch7.addConstraint(Sketcher.Constraint("Tangent", 12, 2, 13, 2))
sketch7.addConstraint(Sketcher.Constraint("Tangent", 13, 1, 14, 1))
sketch7.addConstraint(Sketcher.Constraint("Tangent", 14, 2, 15, 2))
sketch7.addConstraint(Sketcher.Constraint("Tangent", 15, 1, 12, 1))
sketch7.addConstraint(Sketcher.Constraint("Tangent", 16, 2, 17, 2))
sketch7.addConstraint(Sketcher.Constraint("Tangent", 17, 1, 18, 1))
sketch7.addConstraint(Sketcher.Constraint("Tangent", 18, 2, 19, 2))
sketch7.addConstraint(Sketcher.Constraint("Tangent", 19, 1, 16, 1))
sketch7.addConstraint(Sketcher.Constraint("Tangent", 20, 2, 21, 2))
sketch7.addConstraint(Sketcher.Constraint("Tangent", 21, 1, 22, 1))
sketch7.addConstraint(Sketcher.Constraint("Tangent", 22, 2, 23, 2))
sketch7.addConstraint(Sketcher.Constraint("Tangent", 23, 1, 20, 1))
sketch7.addConstraint(Sketcher.Constraint("Tangent", 24, 2, 25, 2))
sketch7.addConstraint(Sketcher.Constraint("Tangent", 25, 1, 26, 1))
sketch7.addConstraint(Sketcher.Constraint("Tangent", 26, 2, 27, 2))
sketch7.addConstraint(Sketcher.Constraint("Tangent", 27, 1, 24, 1))
sketch7.addConstraint(Sketcher.Constraint("Tangent", 28, 2, 29, 2))
sketch7.addConstraint(Sketcher.Constraint("Tangent", 29, 1, 30, 1))
sketch7.addConstraint(Sketcher.Constraint("Tangent", 30, 2, 31, 2))
sketch7.addConstraint(Sketcher.Constraint("Tangent", 31, 1, 28, 1))
sketch7.addConstraint(Sketcher.Constraint("Tangent", 32, 2, 33, 2))
sketch7.addConstraint(Sketcher.Constraint("Tangent", 33, 1, 34, 1))
sketch7.addConstraint(Sketcher.Constraint("Tangent", 34, 2, 35, 2))
sketch7.addConstraint(Sketcher.Constraint("Tangent", 35, 1, 32, 1))
sketch7.addConstraint(Sketcher.Constraint("Tangent", 36, 2, 37, 2))
sketch7.addConstraint(Sketcher.Constraint("Tangent", 37, 1, 38, 1))
sketch7.addConstraint(Sketcher.Constraint("Tangent", 38, 2, 39, 2))
sketch7.addConstraint(Sketcher.Constraint("Tangent", 39, 1, 36, 1))
sketch7.addConstraint(Sketcher.Constraint("Tangent", 40, 2, 41, 2))
sketch7.addConstraint(Sketcher.Constraint("Tangent", 41, 1, 42, 1))
sketch7.addConstraint(Sketcher.Constraint("Tangent", 42, 2, 43, 2))
sketch7.addConstraint(Sketcher.Constraint("Tangent", 43, 1, 40, 1))
sketch7.addConstraint(Sketcher.Constraint("Tangent", 44, 2, 45, 2))
sketch7.addConstraint(Sketcher.Constraint("Tangent", 45, 1, 46, 1))
sketch7.addConstraint(Sketcher.Constraint("Tangent", 46, 2, 47, 2))
sketch7.addConstraint(Sketcher.Constraint("Tangent", 47, 1, 44, 1))
sketch7.addConstraint(Sketcher.Constraint("Tangent", 48, 2, 49, 2))
sketch7.addConstraint(Sketcher.Constraint("Tangent", 49, 1, 50, 1))
sketch7.addConstraint(Sketcher.Constraint("Tangent", 50, 2, 51, 2))
sketch7.addConstraint(Sketcher.Constraint("Tangent", 51, 1, 48, 1))
sketch7.addConstraint(Sketcher.Constraint("Tangent", 52, 2, 53, 2))
sketch7.addConstraint(Sketcher.Constraint("Tangent", 53, 1, 54, 1))
sketch7.addConstraint(Sketcher.Constraint("Tangent", 54, 2, 55, 2))
sketch7.addConstraint(Sketcher.Constraint("Tangent", 55, 1, 52, 1))
sketch7.addConstraint(Sketcher.Constraint("Tangent", 56, 2, 57, 2))
sketch7.addConstraint(Sketcher.Constraint("Tangent", 57, 1, 58, 1))
sketch7.addConstraint(Sketcher.Constraint("Tangent", 58, 2, 59, 2))
sketch7.addConstraint(Sketcher.Constraint("Tangent", 59, 1, 56, 1))
sketch7.addConstraint(Sketcher.Constraint("Vertical", 0))
sketch7.addConstraint(Sketcher.Constraint("Vertical", 2))
sketch7.addConstraint(Sketcher.Constraint("Vertical", 4))
sketch7.addConstraint(Sketcher.Constraint("Vertical", 6))
sketch7.addConstraint(Sketcher.Constraint("Vertical", 8))
sketch7.addConstraint(Sketcher.Constraint("Vertical", 10))
sketch7.addConstraint(Sketcher.Constraint("Vertical", 12))
sketch7.addConstraint(Sketcher.Constraint("Vertical", 14))
sketch7.addConstraint(Sketcher.Constraint("Vertical", 16))
sketch7.addConstraint(Sketcher.Constraint("Vertical", 18))
sketch7.addConstraint(Sketcher.Constraint("Vertical", 20))
sketch7.addConstraint(Sketcher.Constraint("Vertical", 22))
sketch7.addConstraint(Sketcher.Constraint("Vertical", 24))
sketch7.addConstraint(Sketcher.Constraint("Vertical", 26))
sketch7.addConstraint(Sketcher.Constraint("Vertical", 28))
sketch7.addConstraint(Sketcher.Constraint("Vertical", 30))
sketch7.addConstraint(Sketcher.Constraint("Vertical", 32))
sketch7.addConstraint(Sketcher.Constraint("Vertical", 34))
sketch7.addConstraint(Sketcher.Constraint("Vertical", 36))
sketch7.addConstraint(Sketcher.Constraint("Vertical", 38))
sketch7.addConstraint(Sketcher.Constraint("Vertical", 40))
sketch7.addConstraint(Sketcher.Constraint("Vertical", 42))
sketch7.addConstraint(Sketcher.Constraint("Vertical", 44))
sketch7.addConstraint(Sketcher.Constraint("Vertical", 46))
sketch7.addConstraint(Sketcher.Constraint("Vertical", 48))
sketch7.addConstraint(Sketcher.Constraint("Vertical", 50))
sketch7.addConstraint(Sketcher.Constraint("Vertical", 52))
sketch7.addConstraint(Sketcher.Constraint("Vertical", 54))
sketch7.addConstraint(Sketcher.Constraint("Vertical", 56))
sketch7.addConstraint(Sketcher.Constraint("Vertical", 58))
sketch7.addConstraint(Sketcher.Constraint("Equal", 3, 5))
sketch7.addConstraint(Sketcher.Constraint("Equal", 7, 9))
sketch7.addConstraint(Sketcher.Constraint("Equal", 11, 13))
sketch7.addConstraint(Sketcher.Constraint("Equal", 15, 17))
sketch7.addConstraint(Sketcher.Constraint("Equal", 19, 21))
sketch7.addConstraint(Sketcher.Constraint("Equal", 23, 25))
sketch7.addConstraint(Sketcher.Constraint("Equal", 27, 29))
sketch7.addConstraint(Sketcher.Constraint("Equal", 31, 33))
sketch7.addConstraint(Sketcher.Constraint("Equal", 35, 37))
sketch7.addConstraint(Sketcher.Constraint("Equal", 39, 41))
sketch7.addConstraint(Sketcher.Constraint("Equal", 43, 45))
sketch7.addConstraint(Sketcher.Constraint("Equal", 47, 49))
sketch7.addConstraint(Sketcher.Constraint("Equal", 51, 53))
sketch7.addConstraint(Sketcher.Constraint("Equal", 55, 57))
sketch7.addConstraint(Sketcher.Constraint("Symmetric", 25, 3, 33, 3, -2))
sketch7.addConstraint(Sketcher.Constraint("Symmetric", 21, 3, 37, 3, -2))
sketch7.addConstraint(Sketcher.Constraint("Symmetric", 17, 3, 41, 3, -2))
sketch7.addConstraint(Sketcher.Constraint("Symmetric", 13, 3, 45, 3, -2))
sketch7.addConstraint(Sketcher.Constraint("Symmetric", 9, 3, 49, 3, -2))
sketch7.addConstraint(Sketcher.Constraint("Symmetric", 5, 3, 53, 3, -2))
sketch7.addConstraint(Sketcher.Constraint("Symmetric", 1, 3, 57, 3, -2))
sketch7.addConstraint(Sketcher.Constraint("PointOnObject", 29, 3, -2))
sketch7.addConstraint(Sketcher.Constraint("Horizontal", 1, 3, 5, 3))
sketch7.addConstraint(Sketcher.Constraint("Horizontal", 3, 3, 7, 3))
sketch7.addConstraint(Sketcher.Constraint("Horizontal", 5, 3, 9, 3))
sketch7.addConstraint(Sketcher.Constraint("Horizontal", 7, 3, 11, 3))
sketch7.addConstraint(Sketcher.Constraint("Horizontal", 9, 3, 13, 3))
sketch7.addConstraint(Sketcher.Constraint("Horizontal", 11, 3, 15, 3))
sketch7.addConstraint(Sketcher.Constraint("Horizontal", 13, 3, 17, 3))
sketch7.addConstraint(Sketcher.Constraint("Horizontal", 15, 3, 19, 3))
sketch7.addConstraint(Sketcher.Constraint("Horizontal", 17, 3, 21, 3))
sketch7.addConstraint(Sketcher.Constraint("Horizontal", 19, 3, 23, 3))
sketch7.addConstraint(Sketcher.Constraint("Horizontal", 21, 3, 25, 3))
sketch7.addConstraint(Sketcher.Constraint("Horizontal", 23, 3, 27, 3))
sketch7.addConstraint(Sketcher.Constraint("Horizontal", 25, 3, 29, 3))
sketch7.addConstraint(Sketcher.Constraint("Horizontal", 27, 3, 31, 3))
sketch7.addConstraint(Sketcher.Constraint("Horizontal", 31, 3, 35, 3))
sketch7.addConstraint(Sketcher.Constraint("Horizontal", 35, 3, 39, 3))
sketch7.addConstraint(Sketcher.Constraint("Horizontal", 39, 3, 43, 3))
sketch7.addConstraint(Sketcher.Constraint("Horizontal", 43, 3, 47, 3))
sketch7.addConstraint(Sketcher.Constraint("Horizontal", 47, 3, 51, 3))
sketch7.addConstraint(Sketcher.Constraint("Horizontal", 51, 3, 55, 3))
sketch7.addConstraint(Sketcher.Constraint("Horizontal", 55, 3, 59, 3))
sketch7.addConstraint(Sketcher.Constraint("Radius", 1, 2.5))
sketch7.addConstraint(Sketcher.Constraint("DistanceY", 0, 1, 0, 2, 30.0))
sketch7.addConstraint(Sketcher.Constraint("DistanceX", -1, 1, 1, 3, 70.0))
sketch7.addConstraint(Sketcher.Constraint("DistanceX", -1, 1, 5, 3, 60.0))
sketch7.addConstraint(Sketcher.Constraint("DistanceX", -1, 1, 9, 3, 50.0))
sketch7.addConstraint(Sketcher.Constraint("DistanceX", -1, 1, 13, 3, 40.0))
sketch7.addConstraint(Sketcher.Constraint("DistanceX", -1, 1, 17, 3, 30.0))
sketch7.addConstraint(Sketcher.Constraint("DistanceX", -1, 1, 21, 3, 20.0))
sketch7.addConstraint(Sketcher.Constraint("DistanceX", -1, 1, 25, 3, 10.0))
sketch7.addConstraint(Sketcher.Constraint("DistanceY", 1, 3, -1, 1, 6.520842))
pocket3 = doc.addObject("PartDesign::Pocket", "Pocket002")
body.addObject(pocket3)
pocket3.Profile = sketch7
pocket3.Length = 80
pocket3.Reversed = True

doc.recompute()
